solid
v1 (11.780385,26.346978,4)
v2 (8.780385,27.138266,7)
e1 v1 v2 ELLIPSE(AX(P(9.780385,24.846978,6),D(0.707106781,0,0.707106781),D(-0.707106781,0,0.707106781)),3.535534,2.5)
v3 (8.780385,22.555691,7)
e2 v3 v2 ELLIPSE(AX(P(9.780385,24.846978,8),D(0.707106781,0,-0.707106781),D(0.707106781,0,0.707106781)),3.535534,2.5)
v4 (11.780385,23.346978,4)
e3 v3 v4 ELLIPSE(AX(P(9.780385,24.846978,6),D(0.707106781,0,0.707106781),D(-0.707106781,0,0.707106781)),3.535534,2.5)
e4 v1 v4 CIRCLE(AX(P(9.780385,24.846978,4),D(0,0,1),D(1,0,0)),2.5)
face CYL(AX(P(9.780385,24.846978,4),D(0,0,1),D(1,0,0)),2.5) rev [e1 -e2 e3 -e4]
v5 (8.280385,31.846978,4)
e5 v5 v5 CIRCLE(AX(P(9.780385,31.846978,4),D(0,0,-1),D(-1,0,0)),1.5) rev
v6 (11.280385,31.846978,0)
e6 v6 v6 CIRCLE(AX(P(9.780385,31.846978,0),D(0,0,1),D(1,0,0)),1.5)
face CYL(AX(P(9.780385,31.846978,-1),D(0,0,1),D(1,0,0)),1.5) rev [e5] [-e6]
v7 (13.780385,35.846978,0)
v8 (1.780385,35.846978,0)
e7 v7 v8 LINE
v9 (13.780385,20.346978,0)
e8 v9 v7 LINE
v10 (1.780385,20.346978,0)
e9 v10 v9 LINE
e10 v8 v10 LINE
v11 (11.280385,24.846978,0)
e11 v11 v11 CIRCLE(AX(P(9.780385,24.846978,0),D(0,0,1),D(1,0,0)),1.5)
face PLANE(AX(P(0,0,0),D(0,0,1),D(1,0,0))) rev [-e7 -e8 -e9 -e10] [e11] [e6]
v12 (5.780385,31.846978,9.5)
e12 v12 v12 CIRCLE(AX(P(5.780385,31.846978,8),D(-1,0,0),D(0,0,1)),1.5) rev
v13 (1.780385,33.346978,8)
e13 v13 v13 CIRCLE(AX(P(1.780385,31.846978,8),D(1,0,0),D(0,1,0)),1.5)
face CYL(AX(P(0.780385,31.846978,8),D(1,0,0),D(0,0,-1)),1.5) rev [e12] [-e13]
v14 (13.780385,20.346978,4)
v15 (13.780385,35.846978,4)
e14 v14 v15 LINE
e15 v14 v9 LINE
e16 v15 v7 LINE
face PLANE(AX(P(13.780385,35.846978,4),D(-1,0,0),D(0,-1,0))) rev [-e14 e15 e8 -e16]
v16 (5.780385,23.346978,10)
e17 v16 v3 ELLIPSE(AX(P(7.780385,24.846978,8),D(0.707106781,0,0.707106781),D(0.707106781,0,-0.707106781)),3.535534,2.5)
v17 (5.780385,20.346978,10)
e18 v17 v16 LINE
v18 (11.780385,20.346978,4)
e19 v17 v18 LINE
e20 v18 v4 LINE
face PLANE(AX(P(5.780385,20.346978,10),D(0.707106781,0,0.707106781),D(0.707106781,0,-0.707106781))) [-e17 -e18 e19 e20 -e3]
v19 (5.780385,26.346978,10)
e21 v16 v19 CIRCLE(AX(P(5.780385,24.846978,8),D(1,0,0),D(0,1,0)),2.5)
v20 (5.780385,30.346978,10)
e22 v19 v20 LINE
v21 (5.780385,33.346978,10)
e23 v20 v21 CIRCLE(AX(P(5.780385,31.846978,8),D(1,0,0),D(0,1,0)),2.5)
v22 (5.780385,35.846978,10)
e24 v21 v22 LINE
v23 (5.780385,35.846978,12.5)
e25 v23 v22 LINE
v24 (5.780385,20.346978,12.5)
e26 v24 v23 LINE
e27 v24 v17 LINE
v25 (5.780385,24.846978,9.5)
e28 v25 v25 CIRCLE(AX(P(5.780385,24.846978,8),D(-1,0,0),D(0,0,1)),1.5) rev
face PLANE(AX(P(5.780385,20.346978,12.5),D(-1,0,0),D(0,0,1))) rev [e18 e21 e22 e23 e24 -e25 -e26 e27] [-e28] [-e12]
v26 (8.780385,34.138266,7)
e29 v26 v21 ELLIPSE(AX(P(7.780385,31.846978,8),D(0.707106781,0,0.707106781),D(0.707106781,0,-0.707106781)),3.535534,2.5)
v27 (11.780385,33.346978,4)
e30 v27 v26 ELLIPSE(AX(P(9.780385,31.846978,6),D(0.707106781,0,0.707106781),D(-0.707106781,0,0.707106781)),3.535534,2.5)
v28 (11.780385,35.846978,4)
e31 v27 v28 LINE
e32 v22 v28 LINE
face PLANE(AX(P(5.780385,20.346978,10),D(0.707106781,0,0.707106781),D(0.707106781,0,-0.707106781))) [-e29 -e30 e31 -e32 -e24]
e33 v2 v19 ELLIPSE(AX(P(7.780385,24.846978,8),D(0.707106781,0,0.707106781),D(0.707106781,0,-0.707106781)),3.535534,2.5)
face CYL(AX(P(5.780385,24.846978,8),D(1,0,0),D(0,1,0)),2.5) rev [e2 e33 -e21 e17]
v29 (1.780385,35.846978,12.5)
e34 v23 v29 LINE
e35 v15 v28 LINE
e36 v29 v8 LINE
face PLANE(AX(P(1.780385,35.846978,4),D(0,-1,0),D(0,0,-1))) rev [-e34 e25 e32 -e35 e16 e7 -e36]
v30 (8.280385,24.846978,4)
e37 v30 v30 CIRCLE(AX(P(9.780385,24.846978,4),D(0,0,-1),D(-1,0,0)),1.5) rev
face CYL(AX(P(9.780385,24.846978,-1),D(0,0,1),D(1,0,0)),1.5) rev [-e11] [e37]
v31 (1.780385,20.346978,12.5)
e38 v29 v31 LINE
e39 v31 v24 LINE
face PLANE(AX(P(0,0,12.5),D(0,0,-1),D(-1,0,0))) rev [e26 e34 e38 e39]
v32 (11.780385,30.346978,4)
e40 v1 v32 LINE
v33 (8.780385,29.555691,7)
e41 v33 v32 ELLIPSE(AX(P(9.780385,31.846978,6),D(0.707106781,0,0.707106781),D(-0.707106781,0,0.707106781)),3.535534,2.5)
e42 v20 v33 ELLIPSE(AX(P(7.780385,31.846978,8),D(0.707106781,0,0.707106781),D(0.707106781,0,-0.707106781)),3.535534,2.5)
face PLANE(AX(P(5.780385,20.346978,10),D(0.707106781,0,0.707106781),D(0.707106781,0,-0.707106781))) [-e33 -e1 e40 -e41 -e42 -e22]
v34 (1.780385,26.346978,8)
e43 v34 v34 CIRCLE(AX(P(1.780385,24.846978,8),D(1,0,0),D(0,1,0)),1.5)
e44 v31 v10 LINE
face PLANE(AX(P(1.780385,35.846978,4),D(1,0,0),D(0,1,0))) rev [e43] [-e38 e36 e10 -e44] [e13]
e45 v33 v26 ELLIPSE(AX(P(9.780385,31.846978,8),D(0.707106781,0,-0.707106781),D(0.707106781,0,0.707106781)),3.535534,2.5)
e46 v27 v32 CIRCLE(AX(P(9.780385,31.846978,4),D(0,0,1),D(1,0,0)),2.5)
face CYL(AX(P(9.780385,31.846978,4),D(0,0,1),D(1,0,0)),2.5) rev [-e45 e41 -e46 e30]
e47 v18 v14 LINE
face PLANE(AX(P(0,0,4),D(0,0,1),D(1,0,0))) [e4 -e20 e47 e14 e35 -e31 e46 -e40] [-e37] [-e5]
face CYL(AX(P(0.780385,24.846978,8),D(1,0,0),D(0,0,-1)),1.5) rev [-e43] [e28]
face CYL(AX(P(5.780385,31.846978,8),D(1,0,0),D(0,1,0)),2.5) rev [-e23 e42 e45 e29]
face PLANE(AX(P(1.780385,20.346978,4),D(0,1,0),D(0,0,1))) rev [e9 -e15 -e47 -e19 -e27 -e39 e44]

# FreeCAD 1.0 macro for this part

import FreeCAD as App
import Part
import Sketcher

V = App.Vector
Q = App.Units.Quantity

doc = App.newDocument("Part")
body = doc.addObject("PartDesign::Body", "Body")

sketch1 = body.newObject("Sketcher::SketchObject", "Sketch")
sketch1.AttachmentSupport = (doc.getObject("XY_Plane"), [""])
sketch1.MapMode = "FlatFace"
sketch1.addGeometry([
    Part.LineSegment(V(2, 36, 0), V(2, 20, 0)),
    Part.LineSegment(V(2, 20, 0), V(14, 20, 0)),
    Part.LineSegment(V(14, 20, 0), V(14, 36, 0)),
    Part.LineSegment(V(14, 36, 0), V(2, 36, 0)),
], False)
sketch1.addConstraint([
    Sketcher.Constraint("Coincident", 0, 2, 1, 1),
    Sketcher.Constraint("Coincident", 1, 2, 2, 1),
    Sketcher.Constraint("Coincident", 2, 2, 3, 1),
    Sketcher.Constraint("Coincident", 3, 2, 0, 1),
    Sketcher.Constraint("Vertical", 0),
    Sketcher.Constraint("Horizontal", 1),
    Sketcher.Constraint("Vertical", 2),
    Sketcher.Constraint("Horizontal", 3),
    Sketcher.Constraint("DistanceX", 1, 1, 1, 2, Q("12 mm")),
    Sketcher.Constraint("DistanceY", 0, 2, 0, 1, Q("15.5 mm")),
    Sketcher.Constraint("DistanceY", -1, 1, 0, 2, Q("20.346978 mm")),
    Sketcher.Constraint("DistanceX", -1, 1, 0, 2, Q("1.780385 mm")),
])
pad1 = body.newObject("PartDesign::Pad", "Pad")
pad1.Profile = sketch1
pad1.Length = 4

sketch2 = body.newObject("Sketcher::SketchObject", "Sketch001")
sketch2.AttachmentSupport = (doc.getObject("XY_Plane"), [""])
sketch2.MapMode = "FlatFace"
sketch2.AttachmentOffset = App.Placement(V(0, 0, 4), App.Rotation())
sketch2.addGeometry([
    Part.LineSegment(V(1.8, 35.8, 0), V(1.8, 20.3, 0)),
    Part.LineSegment(V(1.8, 20.3, 0), V(5.8, 20.3, 0)),
    Part.LineSegment(V(5.8, 20.3, 0), V(5.8, 35.8, 0)),
    Part.LineSegment(V(5.8, 35.8, 0), V(1.8, 35.8, 0)),
], False)
sketch2.addConstraint([
    Sketcher.Constraint("Coincident", 0, 2, 1, 1),
    Sketcher.Constraint("Coincident", 1, 2, 2, 1),
    Sketcher.Constraint("Coincident", 2, 2, 3, 1),
    Sketcher.Constraint("Coincident", 3, 2, 0, 1),
    Sketcher.Constraint("Vertical", 0),
    Sketcher.Constraint("Horizontal", 1),
    Sketcher.Constraint("Vertical", 2),
    Sketcher.Constraint("Horizontal", 3),
    Sketcher.Constraint("DistanceX", 1, 1, 1, 2, Q("4 mm")),
    Sketcher.Constraint("DistanceY", 0, 2, 0, 1, Q("15.5 mm")),
    Sketcher.Constraint("DistanceY", -1, 1, 0, 2, Q("20.346978 mm")),
    Sketcher.Constraint("DistanceX", -1, 1, 0, 2, Q("1.780385 mm")),
])
pad2 = body.newObject("PartDesign::Pad", "Pad001")
pad2.Profile = sketch2
pad2.Length = 8.5

sketch3 = body.newObject("Sketcher::SketchObject", "Sketch002")
sketch3.AttachmentSupport = (doc.getObject("YZ_Plane"), [""])
sketch3.MapMode = "FlatFace"
sketch3.AttachmentOffset = App.Placement(V(0, 0, 5.780385), App.Rotation())
sketch3.addGeometry([
    Part.Circle(V(24.8, 8, 0), V(0, 0, 1), 1.5),
    Part.Circle(V(31.8, 8, 0), V(0, 0, 1), 1.5),
], False)
sketch3.addConstraint([
    Sketcher.Constraint("Equal", 0, 1),
    Sketcher.Constraint("Horizontal", 0, 3, 1, 3),
    Sketcher.Constraint("Diameter", 0, Q("3 mm")),
    Sketcher.Constraint("DistanceY", -1, 1, 0, 3, Q("8 mm")),
    Sketcher.Constraint("DistanceX", 0, 3, 1, 3, Q("7 mm")),
    Sketcher.Constraint("DistanceX", -1, 1, 0, 3, Q("24.846978 mm")),
])
pocket1 = body.newObject("PartDesign::Pocket", "Pocket")
pocket1.Profile = sketch3
pocket1.Length = 5

sketch4 = body.newObject("Sketcher::SketchObject", "Sketch003")
sketch4.AttachmentSupport = (doc.getObject("XY_Plane"), [""])
sketch4.MapMode = "FlatFace"
sketch4.AttachmentOffset = App.Placement(V(0, 0, 4), App.Rotation())
sketch4.addGeometry([
    Part.Circle(V(9.8, 24.8, 0), V(0, 0, 1), 1.5),
    Part.Circle(V(9.8, 31.8, 0), V(0, 0, 1), 1.5),
], False)
sketch4.addConstraint([
    Sketcher.Constraint("Equal", 0, 1),
    Sketcher.Constraint("Vertical", 0, 3, 1, 3),
    Sketcher.Constraint("Diameter", 0, Q("3 mm")),
    Sketcher.Constraint("DistanceY", 0, 3, 1, 3, Q("7 mm")),
    Sketcher.Constraint("DistanceY", -1, 1, 0, 3, Q("24.846978 mm")),
    Sketcher.Constraint("DistanceX", -1, 1, 0, 3, Q("9.780385 mm")),
])
pocket2 = body.newObject("PartDesign::Pocket", "Pocket001")
pocket2.Profile = sketch4
pocket2.Length = 5

sketch5 = body.newObject("Sketcher::SketchObject", "Sketch004")
sketch5.AttachmentSupport = (doc.getObject("XZ_Plane"), [""])
sketch5.MapMode = "FlatFace"
sketch5.AttachmentOffset = App.Placement(V(0, 0, -35.846978), App.Rotation())
sketch5.addGeometry([
    Part.LineSegment(V(6, 4, 0), V(6, 10, 0)),
    Part.LineSegment(V(6, 10, 0), V(12, 4, 0)),
    Part.LineSegment(V(12, 4, 0), V(6, 4, 0)),
], False)
sketch5.addConstraint([
    Sketcher.Constraint("Coincident", 0, 2, 1, 1),
    Sketcher.Constraint("Coincident", 1, 2, 2, 1),
    Sketcher.Constraint("Coincident", 2, 2, 0, 1),
    Sketcher.Constraint("Vertical", 0),
    Sketcher.Constraint("Horizontal", 2),
    Sketcher.Constraint("Equal", 2, 0),
    Sketcher.Constraint("DistanceX", 2, 2, 2, 1, Q("6 mm")),
    Sketcher.Constraint("DistanceY", -1, 1, 0, 2, Q("10 mm")),
    Sketcher.Constraint("DistanceX", -1, 1, 0, 2, Q("5.780385 mm")),
])
pad3 = body.newObject("PartDesign::Pad", "Pad002")
pad3.Profile = sketch5
pad3.Length = 15.5

sketch6 = body.newObject("Sketcher::SketchObject", "Sketch005")
sketch6.AttachmentSupport = (doc.getObject("YZ_Plane"), [""])
sketch6.MapMode = "FlatFace"
sketch6.AttachmentOffset = App.Placement(V(0, 0, 13.780385), App.Rotation())
sketch6.addGeometry([
    Part.Circle(V(31.8, 8, 0), V(0, 0, 1), 2.5),
    Part.Circle(V(24.8, 8, 0), V(0, 0, 1), 2.5),
], False)
sketch6.addConstraint([
    Sketcher.Constraint("Equal", 0, 1),
    Sketcher.Constraint("Horizontal", 0, 3, 1, 3),
    Sketcher.Constraint("Diameter", 0, Q("5 mm")),
    Sketcher.Constraint("DistanceY", -1, 1, 0, 3, Q("8 mm")),
    Sketcher.Constraint("DistanceX", 1, 3, 0, 3, Q("7 mm")),
    Sketcher.Constraint("DistanceX", -1, 1, 0, 3, Q("31.846978 mm")),
])
pocket3 = body.newObject("PartDesign::Pocket", "Pocket002")
pocket3.Profile = sketch6
pocket3.Length = 8

sketch7 = body.newObject("Sketcher::SketchObject", "Sketch006")
sketch7.AttachmentSupport = (doc.getObject("XY_Plane"), [""])
sketch7.MapMode = "FlatFace"
sketch7.AttachmentOffset = App.Placement(V(0, 0, 12.5), App.Rotation())
sketch7.addGeometry([
    Part.Circle(V(9.8, 31.8, 0), V(0, 0, 1), 2.5),
    Part.Circle(V(9.8, 24.8, 0), V(0, 0, 1), 2.5),
], False)
sketch7.addConstraint([
    Sketcher.Constraint("Equal", 0, 1),
    Sketcher.Constraint("Vertical", 0, 3, 1, 3),
    Sketcher.Constraint("Diameter", 0, Q("5 mm")),
    Sketcher.Constraint("DistanceY", 1, 3, 0, 3, Q("7 mm")),
    Sketcher.Constraint("DistanceY", -1, 1, 0, 3, Q("31.846978 mm")),
    Sketcher.Constraint("DistanceX", -1, 1, 0, 3, Q("9.780385 mm")),
])
pocket4 = body.newObject("PartDesign::Pocket", "Pocket003")
pocket4.Profile = sketch7
pocket4.Length = 8.5

doc.recompute()
